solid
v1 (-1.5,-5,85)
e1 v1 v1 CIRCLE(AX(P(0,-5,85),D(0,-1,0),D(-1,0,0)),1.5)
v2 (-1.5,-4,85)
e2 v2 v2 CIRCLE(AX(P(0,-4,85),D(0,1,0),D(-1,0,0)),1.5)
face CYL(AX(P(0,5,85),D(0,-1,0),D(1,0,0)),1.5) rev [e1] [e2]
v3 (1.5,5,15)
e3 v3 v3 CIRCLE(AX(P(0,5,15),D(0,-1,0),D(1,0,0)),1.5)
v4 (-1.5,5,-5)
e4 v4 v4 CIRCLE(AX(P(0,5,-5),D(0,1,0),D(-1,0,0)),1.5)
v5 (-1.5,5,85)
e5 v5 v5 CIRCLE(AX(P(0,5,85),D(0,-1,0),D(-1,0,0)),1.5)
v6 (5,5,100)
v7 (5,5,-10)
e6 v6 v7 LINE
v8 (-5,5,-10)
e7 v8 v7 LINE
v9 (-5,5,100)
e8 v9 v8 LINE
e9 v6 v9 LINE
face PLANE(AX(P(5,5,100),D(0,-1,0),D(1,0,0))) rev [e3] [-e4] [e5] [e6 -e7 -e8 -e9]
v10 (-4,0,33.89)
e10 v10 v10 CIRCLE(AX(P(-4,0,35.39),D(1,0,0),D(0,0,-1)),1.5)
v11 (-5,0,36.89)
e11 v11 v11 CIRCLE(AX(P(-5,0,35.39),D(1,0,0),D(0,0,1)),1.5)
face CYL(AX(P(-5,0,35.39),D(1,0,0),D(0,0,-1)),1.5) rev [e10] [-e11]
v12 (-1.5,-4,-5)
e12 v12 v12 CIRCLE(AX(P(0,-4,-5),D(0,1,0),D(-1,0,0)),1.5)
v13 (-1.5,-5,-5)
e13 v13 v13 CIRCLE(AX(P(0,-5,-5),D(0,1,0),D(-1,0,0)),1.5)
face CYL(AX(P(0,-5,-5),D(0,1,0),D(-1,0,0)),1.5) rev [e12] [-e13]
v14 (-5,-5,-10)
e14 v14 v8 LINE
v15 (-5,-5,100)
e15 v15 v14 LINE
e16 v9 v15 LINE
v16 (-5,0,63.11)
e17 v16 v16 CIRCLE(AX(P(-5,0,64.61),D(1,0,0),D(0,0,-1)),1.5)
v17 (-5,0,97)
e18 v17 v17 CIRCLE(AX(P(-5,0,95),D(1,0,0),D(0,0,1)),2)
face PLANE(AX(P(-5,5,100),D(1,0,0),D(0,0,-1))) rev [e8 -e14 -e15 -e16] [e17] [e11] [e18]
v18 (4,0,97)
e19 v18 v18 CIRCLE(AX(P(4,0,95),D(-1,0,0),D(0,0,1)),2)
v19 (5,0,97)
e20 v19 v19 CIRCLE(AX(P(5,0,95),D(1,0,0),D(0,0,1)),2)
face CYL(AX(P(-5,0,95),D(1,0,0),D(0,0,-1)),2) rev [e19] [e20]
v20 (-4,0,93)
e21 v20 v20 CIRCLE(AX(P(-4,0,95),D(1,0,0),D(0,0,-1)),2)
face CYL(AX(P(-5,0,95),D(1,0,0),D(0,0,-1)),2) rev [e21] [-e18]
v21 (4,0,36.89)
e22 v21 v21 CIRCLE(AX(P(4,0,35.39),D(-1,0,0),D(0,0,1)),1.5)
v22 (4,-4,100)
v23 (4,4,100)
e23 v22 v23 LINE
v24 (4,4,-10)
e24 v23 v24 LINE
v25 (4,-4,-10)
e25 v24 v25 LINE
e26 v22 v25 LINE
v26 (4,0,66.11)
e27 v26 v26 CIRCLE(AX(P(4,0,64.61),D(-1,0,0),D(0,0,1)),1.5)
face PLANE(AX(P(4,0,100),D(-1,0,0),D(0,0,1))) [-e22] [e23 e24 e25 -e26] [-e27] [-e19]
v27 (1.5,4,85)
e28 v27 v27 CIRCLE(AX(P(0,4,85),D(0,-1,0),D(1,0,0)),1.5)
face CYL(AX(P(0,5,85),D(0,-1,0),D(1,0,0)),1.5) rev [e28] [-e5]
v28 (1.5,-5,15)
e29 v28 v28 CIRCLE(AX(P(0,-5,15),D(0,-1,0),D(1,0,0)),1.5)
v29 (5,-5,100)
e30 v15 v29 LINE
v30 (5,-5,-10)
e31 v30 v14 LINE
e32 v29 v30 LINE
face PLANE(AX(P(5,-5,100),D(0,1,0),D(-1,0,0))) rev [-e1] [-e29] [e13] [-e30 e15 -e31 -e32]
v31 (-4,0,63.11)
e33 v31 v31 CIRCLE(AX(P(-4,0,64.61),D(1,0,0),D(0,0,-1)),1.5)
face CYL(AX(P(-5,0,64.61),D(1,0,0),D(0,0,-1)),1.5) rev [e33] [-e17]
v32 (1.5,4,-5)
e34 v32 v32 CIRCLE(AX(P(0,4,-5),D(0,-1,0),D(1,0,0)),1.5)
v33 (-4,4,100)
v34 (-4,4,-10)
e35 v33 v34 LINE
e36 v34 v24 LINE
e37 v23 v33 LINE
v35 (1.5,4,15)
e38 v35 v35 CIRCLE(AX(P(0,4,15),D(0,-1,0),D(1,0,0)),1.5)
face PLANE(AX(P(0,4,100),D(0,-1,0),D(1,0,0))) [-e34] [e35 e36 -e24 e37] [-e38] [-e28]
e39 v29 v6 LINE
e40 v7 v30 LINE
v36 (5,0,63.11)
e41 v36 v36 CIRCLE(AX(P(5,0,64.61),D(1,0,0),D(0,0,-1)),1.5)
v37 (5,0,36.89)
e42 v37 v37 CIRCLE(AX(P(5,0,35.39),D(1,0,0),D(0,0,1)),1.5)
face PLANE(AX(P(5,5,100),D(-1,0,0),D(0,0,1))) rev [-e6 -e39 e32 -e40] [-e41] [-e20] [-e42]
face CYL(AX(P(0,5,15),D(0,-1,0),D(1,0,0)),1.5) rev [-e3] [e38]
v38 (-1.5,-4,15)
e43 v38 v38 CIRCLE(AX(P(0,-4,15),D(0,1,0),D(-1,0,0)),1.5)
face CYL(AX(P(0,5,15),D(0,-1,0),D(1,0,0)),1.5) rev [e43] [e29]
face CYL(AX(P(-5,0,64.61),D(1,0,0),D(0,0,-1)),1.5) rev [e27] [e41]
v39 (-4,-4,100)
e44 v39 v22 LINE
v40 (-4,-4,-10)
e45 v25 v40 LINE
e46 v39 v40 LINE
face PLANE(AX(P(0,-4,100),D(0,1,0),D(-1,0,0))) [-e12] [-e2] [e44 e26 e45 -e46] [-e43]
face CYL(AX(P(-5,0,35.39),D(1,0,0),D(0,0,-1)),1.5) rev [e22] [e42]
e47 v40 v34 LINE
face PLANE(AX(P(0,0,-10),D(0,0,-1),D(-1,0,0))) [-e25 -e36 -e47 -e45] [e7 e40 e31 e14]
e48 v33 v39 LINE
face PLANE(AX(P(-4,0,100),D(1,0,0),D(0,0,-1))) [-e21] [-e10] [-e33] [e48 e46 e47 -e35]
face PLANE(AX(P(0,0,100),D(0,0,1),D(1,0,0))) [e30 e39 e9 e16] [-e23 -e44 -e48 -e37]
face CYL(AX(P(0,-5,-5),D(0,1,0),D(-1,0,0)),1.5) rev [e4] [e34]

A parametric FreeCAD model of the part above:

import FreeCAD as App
import Part
import Sketcher
from FreeCAD import Vector
Q = App.Units.Quantity


def add_polygon(sketch, points):
    """Adds a closed chain of lines whose ends are joined by coincident constraints."""
    first, n = sketch.GeometryCount, len(points)
    for a, b in zip(points, points[1:] + points[:1]):
        sketch.addGeometry(Part.LineSegment(App.Vector(*a, 0), App.Vector(*b, 0)), False)
    for i in range(n):
        sketch.addConstraint(Sketcher.Constraint("Coincident", first + i, 2, first + (i + 1) % n, 1))

doc = App.newDocument("Part")
body = doc.addObject("PartDesign::Body", "Body")

# Sketch on XY plane
sketch1 = body.newObject("Sketcher::SketchObject", "Sketch")
sketch1.AttachmentSupport = (doc.getObject("XY_Plane"), [""])
sketch1.MapMode = "FlatFace"
add_polygon(sketch1, [(-5, 5), (-5, -5), (5, -5), (5, 5)])  # lines 0-3
add_polygon(sketch1, [(4, -4), (-4, -4), (-4, 4), (4, 4)])  # lines 4-7
sketch1.addConstraint([
    Sketcher.Constraint("Vertical", 0),
    Sketcher.Constraint("Horizontal", 1),
    Sketcher.Constraint("Vertical", 2),
    Sketcher.Constraint("Horizontal", 3),
    Sketcher.Constraint("Horizontal", 4),
    Sketcher.Constraint("Vertical", 5),
    Sketcher.Constraint("Horizontal", 6),
    Sketcher.Constraint("Vertical", 7),
    Sketcher.Constraint("Symmetric", 0, 2, 2, 2, -1, 1),
    Sketcher.Constraint("Symmetric", 4, 2, 6, 2, -1, 1),
    Sketcher.Constraint("Equal", 3, 0),
    Sketcher.Constraint("Equal", 6, 5),
    Sketcher.Constraint("DistanceX", 1, 1, 1, 2, Q("10 mm")),
    Sketcher.Constraint("DistanceX", 4, 2, 4, 1, Q("8 mm")),
])
pad1 = body.newObject("PartDesign::Pad", "Pad")
pad1.Profile = sketch1
pad1.Length = 100

# Sketch on XZ plane
sketch2 = body.newObject("Sketcher::SketchObject", "Sketch001")
sketch2.AttachmentSupport = (doc.getObject("XZ_Plane"), [""])
sketch2.MapMode = "FlatFace"
sketch2.AttachmentOffset = App.Placement(Vector(0, 0, 5), App.Rotation())
sketch2.addGeometry([
    Part.Circle(Vector(0, 15, 0), Vector(0, 0, 1), 1.5),
    Part.Circle(Vector(0, 85, 0), Vector(0, 0, 1), 1.5),
], False)
sketch2.addConstraint([
    Sketcher.Constraint("Equal", 0, 1),
    Sketcher.Constraint("PointOnObject", 0, 3, -2),
    Sketcher.Constraint("PointOnObject", 1, 3, -2),
    Sketcher.Constraint("Diameter", 0, Q("3 mm")),
    Sketcher.Constraint("DistanceY", -1, 1, 0, 3, Q("15 mm")),
    Sketcher.Constraint("DistanceY", -1, 1, 1, 3, Q("85 mm")),
])
pocket1 = body.newObject("PartDesign::Pocket", "Pocket")
pocket1.Profile = sketch2
pocket1.Type = "ThroughAll"

# Sketch on YZ plane
sketch3 = body.newObject("Sketcher::SketchObject", "Sketch002")
sketch3.AttachmentSupport = (doc.getObject("YZ_Plane"), [""])
sketch3.MapMode = "FlatFace"
sketch3.AttachmentOffset = App.Placement(Vector(0, 0, 5), App.Rotation())
sketch3.addGeometry([
    Part.Circle(Vector(0, 64.61, 0), Vector(0, 0, 1), 1.5),
    Part.Circle(Vector(0, 35.39, 0), Vector(0, 0, 1), 1.5),
    Part.Circle(Vector(0, 95, 0), Vector(0, 0, 1), 2),
], False)
sketch3.addConstraint([
    Sketcher.Constraint("Equal", 0, 1),
    Sketcher.Constraint("PointOnObject", 0, 3, -2),
    Sketcher.Constraint("PointOnObject", 1, 3, -2),
    Sketcher.Constraint("PointOnObject", 2, 3, -2),
    Sketcher.Constraint("Diameter", 0, Q("3 mm")),
    Sketcher.Constraint("Diameter", 2, Q("4 mm")),
    Sketcher.Constraint("DistanceY", -1, 1, 2, 3, Q("95 mm")),
    Sketcher.Constraint("DistanceY", -1, 1, 0, 3, Q("64.61 mm")),
    Sketcher.Constraint("DistanceY", -1, 1, 1, 3, Q("35.39 mm")),
])
pocket2 = body.newObject("PartDesign::Pocket", "Pocket001")
pocket2.Profile = sketch3
pocket2.Type = "ThroughAll"

# Sketch on XY plane
sketch4 = body.newObject("Sketcher::SketchObject", "Sketch003")
sketch4.AttachmentSupport = (doc.getObject("XY_Plane"), [""])
sketch4.MapMode = "FlatFace"
add_polygon(sketch4, [(5, 5), (5, -5), (-5, -5), (-5, 5)])  # lines 0-3
add_polygon(sketch4, [(-4, -4), (4, -4), (4, 4), (-4, 4)])  # lines 4-7
sketch4.addConstraint([
    Sketcher.Constraint("Vertical", 0),
    Sketcher.Constraint("Horizontal", 1),
    Sketcher.Constraint("Vertical", 2),
    Sketcher.Constraint("Horizontal", 3),
    Sketcher.Constraint("Horizontal", 4),
    Sketcher.Constraint("Vertical", 5),
    Sketcher.Constraint("Horizontal", 6),
    Sketcher.Constraint("Vertical", 7),
    Sketcher.Constraint("Symmetric", 0, 2, 2, 2, -1, 1),
    Sketcher.Constraint("Symmetric", 4, 2, 6, 2, -1, 1),
    Sketcher.Constraint("Equal", 3, 0),
    Sketcher.Constraint("Equal", 6, 5),
    Sketcher.Constraint("DistanceX", 1, 2, 1, 1, Q("10 mm")),
    Sketcher.Constraint("DistanceX", 4, 1, 4, 2, Q("8 mm")),
])
pad2 = body.newObject("PartDesign::Pad", "Pad001")
pad2.Profile = sketch4
pad2.Length = 10
pad2.Reversed = True

# Sketch on XZ plane
sketch5 = body.newObject("Sketcher::SketchObject", "Sketch004")
sketch5.AttachmentSupport = (doc.getObject("XZ_Plane"), [""])
sketch5.MapMode = "FlatFace"
sketch5.AttachmentOffset = App.Placement(Vector(0, 0, -5), App.Rotation())
sketch5.addGeometry(Part.Circle(Vector(0, -5, 0), Vector(0, 0, 1), 1.5), False)
sketch5.addConstraint([
    Sketcher.Constraint("PointOnObject", 0, 3, -2),
    Sketcher.Constraint("Diameter", 0, Q("3 mm")),
    Sketcher.Constraint("DistanceY", 0, 3, -1, 1, Q("5 mm")),
])
pocket3 = body.newObject("PartDesign::Pocket", "Pocket002")
pocket3.Profile = sketch5
pocket3.Type = "ThroughAll"
pocket3.Reversed = True

doc.recompute()
